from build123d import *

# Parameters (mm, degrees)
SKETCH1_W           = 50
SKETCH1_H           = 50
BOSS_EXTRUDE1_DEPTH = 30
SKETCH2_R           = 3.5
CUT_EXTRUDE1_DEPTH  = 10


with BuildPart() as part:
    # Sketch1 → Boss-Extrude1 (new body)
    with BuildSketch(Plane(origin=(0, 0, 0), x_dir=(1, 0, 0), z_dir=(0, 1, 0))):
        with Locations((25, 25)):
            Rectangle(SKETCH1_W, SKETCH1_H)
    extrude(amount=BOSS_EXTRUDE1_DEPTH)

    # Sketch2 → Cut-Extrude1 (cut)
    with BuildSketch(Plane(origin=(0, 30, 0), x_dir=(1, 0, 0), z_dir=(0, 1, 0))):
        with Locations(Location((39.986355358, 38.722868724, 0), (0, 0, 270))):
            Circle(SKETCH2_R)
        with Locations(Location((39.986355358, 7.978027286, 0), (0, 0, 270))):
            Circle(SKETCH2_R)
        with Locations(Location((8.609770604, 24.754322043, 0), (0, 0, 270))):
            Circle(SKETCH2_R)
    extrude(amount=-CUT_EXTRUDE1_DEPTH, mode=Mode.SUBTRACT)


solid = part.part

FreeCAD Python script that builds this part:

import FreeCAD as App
import Part
import Sketcher
from FreeCAD import Vector


def add_polygon(sketch, points):
    """Adds a closed chain of lines whose ends are joined by coincident constraints."""
    first, n = sketch.GeometryCount, len(points)
    for a, b in zip(points, points[1:] + points[:1]):
        sketch.addGeometry(Part.LineSegment(App.Vector(*a, 0), App.Vector(*b, 0)), False)
    for i in range(n):
        sketch.addConstraint(Sketcher.Constraint("Coincident", first + i, 2, first + (i + 1) % n, 1))

doc = App.newDocument("Part")
body = doc.addObject("PartDesign::Body", "Body")

# Sketch on XZ plane
sketch1 = doc.addObject("Sketcher::SketchObject", "Sketch")
body.addObject(sketch1)
sketch1.AttachmentSupport = (doc.XZ_Plane, [""])
sketch1.MapMode = "FlatFace"
add_polygon(sketch1, [(0, -50), (0, 0), (50, 0), (50, -50)])  # lines 0-3
sketch1.addConstraint([
    Sketcher.Constraint("Vertical", 0),
    Sketcher.Constraint("Horizontal", 1),
    Sketcher.Constraint("Vertical", 2),
    Sketcher.Constraint("Horizontal", 3),
    Sketcher.Constraint("Coincident", 0, 2, -1, 1),
    Sketcher.Constraint("Equal", 3, 0),
    Sketcher.Constraint("DistanceX", 1, 1, 1, 2, 50.0),
])
pad1 = doc.addObject("PartDesign::Pad", "Pad")
body.addObject(pad1)
pad1.Profile = sketch1
pad1.Length = 30
pad1.Reversed = True

# Sketch on XZ plane
sketch2 = doc.addObject("Sketcher::SketchObject", "Sketch001")
body.addObject(sketch2)
sketch2.AttachmentSupport = (doc.XZ_Plane, [""])
sketch2.MapMode = "FlatFace"
sketch2.AttachmentOffset = App.Placement(Vector(0, 0, -30), App.Rotation())
sketch2.addGeometry([
    Part.Circle(Vector(39.986355, -38.722869, 0), Vector(0, 0, 1), 3.5),
    Part.Circle(Vector(39.986355, -7.978027, 0), Vector(0, 0, 1), 3.5),
    Part.Circle(Vector(8.609771, -24.754322, 0), Vector(0, 0, 1), 3.5),
], False)
sketch2.addConstraint([
    Sketcher.Constraint("Equal", 0, 1),
    Sketcher.Constraint("Equal", 1, 2),
    Sketcher.Constraint("Vertical", 0, 3, 1, 3),
    Sketcher.Constraint("Diameter", 0, 7.0),
    Sketcher.Constraint("DistanceY", 0, 3, -1, 1, 38.722869),
    Sketcher.Constraint("DistanceX", -1, 1, 2, 3, 8.609771),
    Sketcher.Constraint("DistanceY", 0, 3, 1, 3, 30.744841),
    Sketcher.Constraint("DistanceX", -1, 1, 0, 3, 39.986355),
    Sketcher.Constraint("DistanceY", 2, 3, -1, 1, 24.754322),
])
pocket1 = doc.addObject("PartDesign::Pocket", "Pocket")
body.addObject(pocket1)
pocket1.Profile = sketch2
pocket1.Length = 10
pocket1.Reversed = True

doc.recompute()
